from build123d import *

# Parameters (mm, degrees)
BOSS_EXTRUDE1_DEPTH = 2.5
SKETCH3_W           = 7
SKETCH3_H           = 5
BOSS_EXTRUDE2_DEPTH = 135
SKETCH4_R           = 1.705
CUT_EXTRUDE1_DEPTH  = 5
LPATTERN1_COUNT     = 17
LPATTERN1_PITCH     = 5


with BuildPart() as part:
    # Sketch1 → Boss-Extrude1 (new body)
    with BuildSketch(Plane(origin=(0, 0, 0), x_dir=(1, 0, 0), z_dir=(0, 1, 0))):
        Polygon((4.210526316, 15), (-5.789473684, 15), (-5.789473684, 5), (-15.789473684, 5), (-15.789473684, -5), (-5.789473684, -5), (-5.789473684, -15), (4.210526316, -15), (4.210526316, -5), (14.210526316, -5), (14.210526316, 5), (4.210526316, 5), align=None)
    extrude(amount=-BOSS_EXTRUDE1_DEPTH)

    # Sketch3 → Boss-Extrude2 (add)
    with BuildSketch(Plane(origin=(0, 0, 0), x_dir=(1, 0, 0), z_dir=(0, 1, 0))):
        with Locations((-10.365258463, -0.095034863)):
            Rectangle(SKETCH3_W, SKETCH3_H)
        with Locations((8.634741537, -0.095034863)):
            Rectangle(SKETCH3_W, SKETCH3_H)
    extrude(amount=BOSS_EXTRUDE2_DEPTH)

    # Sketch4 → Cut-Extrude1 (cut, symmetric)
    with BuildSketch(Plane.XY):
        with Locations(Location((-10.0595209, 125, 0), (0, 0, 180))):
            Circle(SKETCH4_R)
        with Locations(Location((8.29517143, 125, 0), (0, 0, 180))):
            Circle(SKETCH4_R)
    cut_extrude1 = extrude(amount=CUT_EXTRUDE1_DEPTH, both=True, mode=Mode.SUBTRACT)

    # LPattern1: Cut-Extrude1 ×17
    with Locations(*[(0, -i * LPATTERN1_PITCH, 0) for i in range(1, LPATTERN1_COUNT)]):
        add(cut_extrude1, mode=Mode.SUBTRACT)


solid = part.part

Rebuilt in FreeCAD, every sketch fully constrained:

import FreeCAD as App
import Part
import Sketcher
from FreeCAD import Vector


def add_polygon(sketch, points):
    """Adds a closed chain of lines whose ends are joined by coincident constraints."""
    first, n = sketch.GeometryCount, len(points)
    for a, b in zip(points, points[1:] + points[:1]):
        sketch.addGeometry(Part.LineSegment(App.Vector(*a, 0), App.Vector(*b, 0)), False)
    for i in range(n):
        sketch.addConstraint(Sketcher.Constraint("Coincident", first + i, 2, first + (i + 1) % n, 1))

doc = App.newDocument("Part")
body = doc.addObject("PartDesign::Body", "Body")

# Sketch on XZ plane
sketch1 = body.newObject("Sketcher::SketchObject", "Sketch")
sketch1.AttachmentSupport = (doc.getObject("XZ_Plane"), [""])
sketch1.MapMode = "FlatFace"
add_polygon(sketch1, [(4, -15), (-6, -15), (-6, -5), (-16, -5), (-16, 5), (-6, 5), (-6, 15), (4, 15), (4, 5), (14, 5), (14, -5), (4, -5)])  # lines 0-11
sketch1.addConstraint([
    Sketcher.Constraint("Horizontal", 0),
    Sketcher.Constraint("Vertical", 1),
    Sketcher.Constraint("Horizontal", 2),
    Sketcher.Constraint("Vertical", 3),
    Sketcher.Constraint("Horizontal", 4),
    Sketcher.Constraint("Vertical", 5),
    Sketcher.Constraint("Horizontal", 6),
    Sketcher.Constraint("Vertical", 7),
    Sketcher.Constraint("Horizontal", 8),
    Sketcher.Constraint("Vertical", 9),
    Sketcher.Constraint("Horizontal", 10),
    Sketcher.Constraint("Vertical", 11),
    Sketcher.Constraint("Symmetric", 1, 2, 4, 2, -1),
    Sketcher.Constraint("Symmetric", 7, 2, 10, 2, -1),
    Sketcher.Constraint("Horizontal", 4, 2, 7, 2),
    Sketcher.Constraint("Equal", 0, 2),
    Sketcher.Constraint("Equal", 6, 8),
    Sketcher.Constraint("Equal", 10, 1),
    Sketcher.Constraint("Equal", 1, 3),
    Sketcher.Constraint("Equal", 3, 5),
    Sketcher.Constraint("DistanceX", 0, 2, 0, 1, 10.0),
    Sketcher.Constraint("DistanceX", 0, 2, -1, 1, 5.789474),
])
pad1 = body.newObject("PartDesign::Pad", "Pad")
pad1.Profile = sketch1
pad1.Length = 2.5

# Sketch on XZ plane
sketch2 = body.newObject("Sketcher::SketchObject", "Sketch001")
sketch2.AttachmentSupport = (doc.getObject("XZ_Plane"), [""])
sketch2.MapMode = "FlatFace"
add_polygon(sketch2, [(-14, -2), (-14, 3), (-7, 3), (-7, -2)])  # lines 0-3
add_polygon(sketch2, [(5, -2), (5, 3), (12, 3), (12, -2)])  # lines 4-7
sketch2.addConstraint([
    Sketcher.Constraint("Vertical", 0),
    Sketcher.Constraint("Horizontal", 1),
    Sketcher.Constraint("Vertical", 2),
    Sketcher.Constraint("Horizontal", 3),
    Sketcher.Constraint("Vertical", 4),
    Sketcher.Constraint("Horizontal", 5),
    Sketcher.Constraint("Vertical", 6),
    Sketcher.Constraint("Horizontal", 7),
    Sketcher.Constraint("Horizontal", 1, 2, 4, 2),
    Sketcher.Constraint("Horizontal", 3, 2, 6, 2),
    Sketcher.Constraint("Equal", 3, 5),
    Sketcher.Constraint("DistanceX", 1, 1, 1, 2, 7.0),
    Sketcher.Constraint("DistanceY", 0, 1, 0, 2, 5.0),
    Sketcher.Constraint("DistanceX", 1, 2, 4, 2, 12.0),
    Sketcher.Constraint("DistanceX", 0, 2, -1, 1, 13.865258),
    Sketcher.Constraint("DistanceY", -1, 1, 0, 2, 2.595035),
])
pad2 = body.newObject("PartDesign::Pad", "Pad001")
pad2.Profile = sketch2
pad2.Length = 135
pad2.Reversed = True

# Sketch on XY plane
sketch3 = body.newObject("Sketcher::SketchObject", "Sketch002")
sketch3.AttachmentSupport = (doc.getObject("XY_Plane"), [""])
sketch3.MapMode = "FlatFace"
sketch3.addGeometry([
    Part.Circle(Vector(-10.1, 125, 0), Vector(0, 0, 1), 1.7),
    Part.Circle(Vector(8.3, 125, 0), Vector(0, 0, 1), 1.7),
], False)
sketch3.addConstraint([
    Sketcher.Constraint("Equal", 0, 1),
    Sketcher.Constraint("Horizontal", 0, 3, 1, 3),
    Sketcher.Constraint("Diameter", 0, 3.41),
    Sketcher.Constraint("DistanceY", -1, 1, 0, 3, 125.0),
    Sketcher.Constraint("DistanceX", 0, 3, -1, 1, 10.059521),
    Sketcher.Constraint("DistanceX", -1, 1, 1, 3, 8.295171),
])
pocket1 = body.newObject("PartDesign::Pocket", "Pocket")
pocket1.Profile = sketch3
pocket1.Length = 10
pocket1.Midplane = True
doc.recompute()

linearpattern = body.newObject("PartDesign::LinearPattern", "LinearPattern")
linearpattern.Originals = [pocket1]
linearpattern.Direction = (doc.getObject("Y_Axis"), [""])
linearpattern.Mode = "offset"
linearpattern.Offset = 5
linearpattern.Occurrences = 17
linearpattern.Reversed = True
body.Tip = linearpattern

doc.recompute()
